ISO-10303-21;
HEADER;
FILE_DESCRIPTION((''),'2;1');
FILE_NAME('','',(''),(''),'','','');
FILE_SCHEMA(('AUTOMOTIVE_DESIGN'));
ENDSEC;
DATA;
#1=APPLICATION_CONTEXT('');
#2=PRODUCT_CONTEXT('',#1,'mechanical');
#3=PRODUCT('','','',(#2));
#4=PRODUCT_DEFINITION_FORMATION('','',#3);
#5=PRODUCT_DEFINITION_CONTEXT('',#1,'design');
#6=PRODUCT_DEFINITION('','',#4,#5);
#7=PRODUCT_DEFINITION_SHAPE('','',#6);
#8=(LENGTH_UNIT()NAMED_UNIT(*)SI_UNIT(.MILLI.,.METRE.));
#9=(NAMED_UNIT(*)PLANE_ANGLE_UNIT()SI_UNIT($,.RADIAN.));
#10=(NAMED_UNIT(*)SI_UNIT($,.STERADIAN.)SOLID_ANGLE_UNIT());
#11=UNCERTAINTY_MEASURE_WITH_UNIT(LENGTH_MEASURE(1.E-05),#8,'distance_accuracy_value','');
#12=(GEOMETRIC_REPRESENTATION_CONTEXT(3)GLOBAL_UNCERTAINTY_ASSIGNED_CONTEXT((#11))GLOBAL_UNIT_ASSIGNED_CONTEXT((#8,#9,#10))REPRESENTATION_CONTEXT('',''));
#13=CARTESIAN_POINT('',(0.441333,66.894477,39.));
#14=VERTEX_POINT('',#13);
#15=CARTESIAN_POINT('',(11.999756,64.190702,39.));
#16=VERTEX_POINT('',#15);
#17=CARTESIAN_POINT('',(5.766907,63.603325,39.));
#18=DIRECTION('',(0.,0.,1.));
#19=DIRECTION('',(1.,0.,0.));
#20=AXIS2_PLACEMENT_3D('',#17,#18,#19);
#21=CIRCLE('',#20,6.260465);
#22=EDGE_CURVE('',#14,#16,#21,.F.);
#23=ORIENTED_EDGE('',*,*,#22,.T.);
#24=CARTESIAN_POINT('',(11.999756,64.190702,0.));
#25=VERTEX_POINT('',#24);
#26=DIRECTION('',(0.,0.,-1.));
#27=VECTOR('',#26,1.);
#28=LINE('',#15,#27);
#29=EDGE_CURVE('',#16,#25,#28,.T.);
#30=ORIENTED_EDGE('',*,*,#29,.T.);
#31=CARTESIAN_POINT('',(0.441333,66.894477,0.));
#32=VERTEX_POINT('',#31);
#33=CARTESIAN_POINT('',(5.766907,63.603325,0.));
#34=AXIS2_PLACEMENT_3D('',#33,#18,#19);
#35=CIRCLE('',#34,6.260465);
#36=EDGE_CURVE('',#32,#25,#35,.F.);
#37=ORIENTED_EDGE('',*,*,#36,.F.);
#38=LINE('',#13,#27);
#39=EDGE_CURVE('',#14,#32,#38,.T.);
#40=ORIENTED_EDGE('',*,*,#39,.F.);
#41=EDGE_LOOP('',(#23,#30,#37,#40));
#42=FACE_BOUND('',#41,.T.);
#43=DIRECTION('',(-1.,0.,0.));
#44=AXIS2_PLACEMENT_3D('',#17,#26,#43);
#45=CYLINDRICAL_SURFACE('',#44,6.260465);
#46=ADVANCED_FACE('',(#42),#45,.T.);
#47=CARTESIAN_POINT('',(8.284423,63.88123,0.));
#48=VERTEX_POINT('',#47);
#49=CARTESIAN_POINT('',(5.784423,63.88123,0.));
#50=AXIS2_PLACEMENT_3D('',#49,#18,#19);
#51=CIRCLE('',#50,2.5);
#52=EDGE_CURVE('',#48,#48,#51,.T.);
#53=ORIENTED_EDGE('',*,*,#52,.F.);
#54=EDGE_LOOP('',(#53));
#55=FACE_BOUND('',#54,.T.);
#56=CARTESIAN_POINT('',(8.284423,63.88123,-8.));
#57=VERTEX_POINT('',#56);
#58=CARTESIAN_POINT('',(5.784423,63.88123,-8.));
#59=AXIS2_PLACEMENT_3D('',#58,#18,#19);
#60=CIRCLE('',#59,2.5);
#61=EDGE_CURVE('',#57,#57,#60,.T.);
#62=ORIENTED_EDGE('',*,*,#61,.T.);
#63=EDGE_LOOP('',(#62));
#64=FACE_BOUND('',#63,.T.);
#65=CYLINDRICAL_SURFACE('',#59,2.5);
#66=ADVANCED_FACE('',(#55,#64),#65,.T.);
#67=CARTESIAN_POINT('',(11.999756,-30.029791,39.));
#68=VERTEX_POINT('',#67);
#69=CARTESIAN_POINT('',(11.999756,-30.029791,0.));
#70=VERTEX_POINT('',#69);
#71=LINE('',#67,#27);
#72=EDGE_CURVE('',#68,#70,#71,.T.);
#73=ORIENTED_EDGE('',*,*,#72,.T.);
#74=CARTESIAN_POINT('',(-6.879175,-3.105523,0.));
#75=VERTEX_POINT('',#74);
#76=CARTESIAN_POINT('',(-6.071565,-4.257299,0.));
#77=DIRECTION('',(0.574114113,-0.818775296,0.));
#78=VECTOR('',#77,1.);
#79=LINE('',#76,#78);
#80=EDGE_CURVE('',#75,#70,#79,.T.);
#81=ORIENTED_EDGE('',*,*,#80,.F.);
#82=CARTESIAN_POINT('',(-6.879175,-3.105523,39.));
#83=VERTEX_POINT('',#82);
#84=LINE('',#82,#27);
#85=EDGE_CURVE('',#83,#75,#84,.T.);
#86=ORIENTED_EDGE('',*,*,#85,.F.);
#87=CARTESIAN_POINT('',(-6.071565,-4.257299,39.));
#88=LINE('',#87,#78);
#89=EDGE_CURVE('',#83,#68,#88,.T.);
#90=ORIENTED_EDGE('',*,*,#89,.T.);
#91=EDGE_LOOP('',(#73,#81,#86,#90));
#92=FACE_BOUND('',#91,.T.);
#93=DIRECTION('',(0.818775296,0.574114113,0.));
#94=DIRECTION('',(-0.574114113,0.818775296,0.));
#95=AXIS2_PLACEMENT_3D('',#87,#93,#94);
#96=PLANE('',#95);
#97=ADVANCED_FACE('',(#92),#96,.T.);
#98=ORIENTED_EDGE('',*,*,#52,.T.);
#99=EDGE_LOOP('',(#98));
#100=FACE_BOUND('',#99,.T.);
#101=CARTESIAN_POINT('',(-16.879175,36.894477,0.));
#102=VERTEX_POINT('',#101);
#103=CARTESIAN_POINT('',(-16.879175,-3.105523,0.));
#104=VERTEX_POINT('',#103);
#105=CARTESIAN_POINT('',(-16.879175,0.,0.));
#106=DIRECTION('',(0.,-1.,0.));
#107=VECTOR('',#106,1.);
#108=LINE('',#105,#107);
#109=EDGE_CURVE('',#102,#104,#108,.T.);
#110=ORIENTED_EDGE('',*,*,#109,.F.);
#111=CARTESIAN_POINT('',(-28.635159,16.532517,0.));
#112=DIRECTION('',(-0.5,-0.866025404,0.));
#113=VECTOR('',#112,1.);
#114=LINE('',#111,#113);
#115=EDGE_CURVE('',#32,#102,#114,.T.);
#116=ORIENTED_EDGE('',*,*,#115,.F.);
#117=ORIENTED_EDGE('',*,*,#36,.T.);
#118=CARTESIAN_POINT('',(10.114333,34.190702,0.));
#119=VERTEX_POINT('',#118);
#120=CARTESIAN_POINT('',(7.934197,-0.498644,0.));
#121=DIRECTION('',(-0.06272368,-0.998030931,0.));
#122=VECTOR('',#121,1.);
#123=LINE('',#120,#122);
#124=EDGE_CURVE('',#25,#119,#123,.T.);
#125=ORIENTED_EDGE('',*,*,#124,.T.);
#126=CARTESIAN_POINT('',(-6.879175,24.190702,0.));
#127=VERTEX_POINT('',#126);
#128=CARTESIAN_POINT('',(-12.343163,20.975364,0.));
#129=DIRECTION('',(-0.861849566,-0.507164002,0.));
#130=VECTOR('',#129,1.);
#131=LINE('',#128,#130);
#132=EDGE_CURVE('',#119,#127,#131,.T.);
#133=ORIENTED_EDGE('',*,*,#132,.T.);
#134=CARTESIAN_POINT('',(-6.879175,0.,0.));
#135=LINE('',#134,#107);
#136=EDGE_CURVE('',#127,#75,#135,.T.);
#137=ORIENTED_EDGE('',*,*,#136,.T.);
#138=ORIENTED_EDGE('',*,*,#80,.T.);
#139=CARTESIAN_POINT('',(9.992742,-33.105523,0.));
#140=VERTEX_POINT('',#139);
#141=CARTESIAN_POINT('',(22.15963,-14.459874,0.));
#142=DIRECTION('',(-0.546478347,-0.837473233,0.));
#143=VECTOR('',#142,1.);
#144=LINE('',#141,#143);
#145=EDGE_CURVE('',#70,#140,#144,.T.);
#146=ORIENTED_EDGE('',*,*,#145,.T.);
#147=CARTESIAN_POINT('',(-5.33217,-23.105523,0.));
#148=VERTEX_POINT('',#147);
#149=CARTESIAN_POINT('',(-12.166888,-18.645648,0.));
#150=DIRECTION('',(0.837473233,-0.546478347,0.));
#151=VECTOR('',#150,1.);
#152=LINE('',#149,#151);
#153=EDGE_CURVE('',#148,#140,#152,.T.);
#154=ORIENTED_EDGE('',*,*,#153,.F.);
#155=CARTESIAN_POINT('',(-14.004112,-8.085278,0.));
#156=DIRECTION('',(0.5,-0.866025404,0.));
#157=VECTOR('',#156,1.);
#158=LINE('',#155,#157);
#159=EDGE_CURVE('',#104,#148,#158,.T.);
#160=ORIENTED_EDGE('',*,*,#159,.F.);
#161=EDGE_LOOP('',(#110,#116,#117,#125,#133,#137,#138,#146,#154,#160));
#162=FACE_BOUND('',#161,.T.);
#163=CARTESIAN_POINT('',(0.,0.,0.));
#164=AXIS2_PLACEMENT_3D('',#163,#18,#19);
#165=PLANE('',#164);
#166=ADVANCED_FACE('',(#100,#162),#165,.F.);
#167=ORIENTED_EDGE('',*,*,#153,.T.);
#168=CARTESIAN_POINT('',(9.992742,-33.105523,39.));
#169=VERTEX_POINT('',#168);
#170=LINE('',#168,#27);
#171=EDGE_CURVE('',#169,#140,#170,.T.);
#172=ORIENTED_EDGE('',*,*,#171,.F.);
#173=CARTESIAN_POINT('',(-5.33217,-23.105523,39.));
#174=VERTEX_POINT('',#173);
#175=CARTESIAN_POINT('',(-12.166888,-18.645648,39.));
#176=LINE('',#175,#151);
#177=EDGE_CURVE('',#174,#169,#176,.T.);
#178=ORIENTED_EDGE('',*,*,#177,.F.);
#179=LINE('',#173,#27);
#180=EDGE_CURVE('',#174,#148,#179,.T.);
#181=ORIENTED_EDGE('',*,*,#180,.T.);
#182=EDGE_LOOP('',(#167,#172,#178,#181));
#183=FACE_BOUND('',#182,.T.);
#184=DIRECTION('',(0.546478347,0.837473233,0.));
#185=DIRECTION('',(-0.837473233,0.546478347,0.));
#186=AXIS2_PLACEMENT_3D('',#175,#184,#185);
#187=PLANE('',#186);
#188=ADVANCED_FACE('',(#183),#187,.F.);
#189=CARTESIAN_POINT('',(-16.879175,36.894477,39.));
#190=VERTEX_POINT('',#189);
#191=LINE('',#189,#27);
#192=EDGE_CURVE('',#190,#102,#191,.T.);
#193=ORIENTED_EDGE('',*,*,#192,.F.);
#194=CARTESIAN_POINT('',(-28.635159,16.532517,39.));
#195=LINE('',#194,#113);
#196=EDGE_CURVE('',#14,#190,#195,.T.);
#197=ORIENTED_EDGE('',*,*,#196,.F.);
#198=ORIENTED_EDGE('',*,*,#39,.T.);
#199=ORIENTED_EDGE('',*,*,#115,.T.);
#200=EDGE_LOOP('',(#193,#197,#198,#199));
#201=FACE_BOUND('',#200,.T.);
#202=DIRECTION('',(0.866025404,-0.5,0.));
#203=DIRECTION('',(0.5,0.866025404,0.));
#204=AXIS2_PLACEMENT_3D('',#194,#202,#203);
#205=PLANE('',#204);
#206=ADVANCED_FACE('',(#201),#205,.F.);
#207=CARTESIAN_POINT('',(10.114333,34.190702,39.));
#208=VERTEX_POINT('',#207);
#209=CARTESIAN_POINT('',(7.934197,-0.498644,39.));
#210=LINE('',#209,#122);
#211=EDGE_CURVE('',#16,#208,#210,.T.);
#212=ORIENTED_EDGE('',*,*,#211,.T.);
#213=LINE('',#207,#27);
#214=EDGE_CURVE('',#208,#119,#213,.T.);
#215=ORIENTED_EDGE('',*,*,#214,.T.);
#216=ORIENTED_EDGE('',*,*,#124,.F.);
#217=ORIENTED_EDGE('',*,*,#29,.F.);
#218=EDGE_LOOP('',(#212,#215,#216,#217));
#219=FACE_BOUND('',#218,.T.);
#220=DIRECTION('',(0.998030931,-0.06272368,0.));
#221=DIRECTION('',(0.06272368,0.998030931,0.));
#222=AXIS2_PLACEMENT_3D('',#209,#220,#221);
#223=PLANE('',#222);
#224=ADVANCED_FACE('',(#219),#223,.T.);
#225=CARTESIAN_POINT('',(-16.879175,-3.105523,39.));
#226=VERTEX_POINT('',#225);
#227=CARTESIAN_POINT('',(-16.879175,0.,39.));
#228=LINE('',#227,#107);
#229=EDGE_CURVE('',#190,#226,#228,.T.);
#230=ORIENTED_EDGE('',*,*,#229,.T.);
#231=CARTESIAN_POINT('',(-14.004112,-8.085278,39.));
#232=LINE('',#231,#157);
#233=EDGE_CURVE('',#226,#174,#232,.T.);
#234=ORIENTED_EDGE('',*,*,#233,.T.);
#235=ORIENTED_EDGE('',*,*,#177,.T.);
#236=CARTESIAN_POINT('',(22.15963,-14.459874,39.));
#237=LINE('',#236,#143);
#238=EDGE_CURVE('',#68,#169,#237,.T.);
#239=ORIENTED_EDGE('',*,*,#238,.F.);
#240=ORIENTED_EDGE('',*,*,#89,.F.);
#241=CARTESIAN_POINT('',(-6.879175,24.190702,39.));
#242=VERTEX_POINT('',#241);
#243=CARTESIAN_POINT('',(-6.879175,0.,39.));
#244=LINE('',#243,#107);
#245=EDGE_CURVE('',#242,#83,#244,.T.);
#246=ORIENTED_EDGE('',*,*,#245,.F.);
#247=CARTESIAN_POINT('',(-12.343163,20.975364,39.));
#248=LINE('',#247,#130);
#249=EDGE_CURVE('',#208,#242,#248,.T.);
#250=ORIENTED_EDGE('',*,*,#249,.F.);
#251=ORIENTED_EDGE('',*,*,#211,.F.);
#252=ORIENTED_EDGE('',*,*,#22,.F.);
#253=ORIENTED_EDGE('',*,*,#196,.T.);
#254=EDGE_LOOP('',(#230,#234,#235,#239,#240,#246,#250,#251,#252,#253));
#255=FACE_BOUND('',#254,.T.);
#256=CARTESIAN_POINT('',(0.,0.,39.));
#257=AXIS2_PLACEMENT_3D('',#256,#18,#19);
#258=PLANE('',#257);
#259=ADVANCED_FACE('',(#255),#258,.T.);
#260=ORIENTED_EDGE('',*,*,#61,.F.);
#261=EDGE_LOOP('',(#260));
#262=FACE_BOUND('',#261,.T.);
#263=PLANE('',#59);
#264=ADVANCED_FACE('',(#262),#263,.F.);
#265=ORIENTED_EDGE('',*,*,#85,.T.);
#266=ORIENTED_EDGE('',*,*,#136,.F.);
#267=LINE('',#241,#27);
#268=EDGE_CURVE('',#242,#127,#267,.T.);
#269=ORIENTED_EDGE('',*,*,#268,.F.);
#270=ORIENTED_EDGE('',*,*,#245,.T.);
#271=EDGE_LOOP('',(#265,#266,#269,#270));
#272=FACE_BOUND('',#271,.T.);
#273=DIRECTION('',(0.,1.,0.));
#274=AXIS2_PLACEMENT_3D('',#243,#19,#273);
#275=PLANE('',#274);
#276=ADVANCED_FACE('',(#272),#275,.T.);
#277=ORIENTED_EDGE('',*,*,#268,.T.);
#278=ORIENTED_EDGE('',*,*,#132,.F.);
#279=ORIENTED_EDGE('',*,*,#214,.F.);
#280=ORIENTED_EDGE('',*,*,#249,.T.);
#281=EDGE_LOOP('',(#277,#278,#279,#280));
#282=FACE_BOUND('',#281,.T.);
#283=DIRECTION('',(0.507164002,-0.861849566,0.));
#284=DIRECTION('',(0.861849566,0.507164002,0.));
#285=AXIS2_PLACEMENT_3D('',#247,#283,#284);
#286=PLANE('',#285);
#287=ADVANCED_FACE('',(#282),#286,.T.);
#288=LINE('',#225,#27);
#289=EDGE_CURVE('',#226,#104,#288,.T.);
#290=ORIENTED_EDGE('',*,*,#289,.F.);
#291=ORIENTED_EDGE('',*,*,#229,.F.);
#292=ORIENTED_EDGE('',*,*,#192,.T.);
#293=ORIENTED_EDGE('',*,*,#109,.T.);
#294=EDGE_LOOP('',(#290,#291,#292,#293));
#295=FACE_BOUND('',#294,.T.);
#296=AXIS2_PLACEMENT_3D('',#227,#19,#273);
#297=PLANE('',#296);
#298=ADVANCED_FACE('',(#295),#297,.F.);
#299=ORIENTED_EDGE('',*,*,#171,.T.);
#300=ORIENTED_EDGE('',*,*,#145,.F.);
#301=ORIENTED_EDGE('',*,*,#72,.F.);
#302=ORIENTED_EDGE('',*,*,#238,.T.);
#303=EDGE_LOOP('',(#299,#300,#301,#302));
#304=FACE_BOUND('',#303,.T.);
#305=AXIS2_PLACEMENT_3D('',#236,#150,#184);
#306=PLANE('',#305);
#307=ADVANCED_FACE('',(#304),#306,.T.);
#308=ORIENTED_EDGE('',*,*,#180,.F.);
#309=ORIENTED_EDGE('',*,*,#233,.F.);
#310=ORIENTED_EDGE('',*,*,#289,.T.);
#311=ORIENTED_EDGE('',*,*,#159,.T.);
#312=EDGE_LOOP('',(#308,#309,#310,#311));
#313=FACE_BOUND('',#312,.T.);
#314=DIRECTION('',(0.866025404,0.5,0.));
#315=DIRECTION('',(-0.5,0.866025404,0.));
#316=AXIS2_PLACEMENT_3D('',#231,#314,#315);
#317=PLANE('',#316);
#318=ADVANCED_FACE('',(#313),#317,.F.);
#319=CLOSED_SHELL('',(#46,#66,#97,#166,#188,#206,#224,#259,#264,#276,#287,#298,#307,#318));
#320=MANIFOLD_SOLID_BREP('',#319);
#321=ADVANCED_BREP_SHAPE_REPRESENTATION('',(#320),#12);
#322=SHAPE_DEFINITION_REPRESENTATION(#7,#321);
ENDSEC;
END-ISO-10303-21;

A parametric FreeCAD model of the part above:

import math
import FreeCAD as App
import Part
import Sketcher

V = App.Vector
Q = App.Units.Quantity

doc = App.newDocument("Part")
body = doc.addObject("PartDesign::Body", "Body")

sketch1 = body.newObject("Sketcher::SketchObject", "Sketch")
sketch1.AttachmentSupport = (doc.getObject("XY_Plane"), [""])
sketch1.MapMode = "FlatFace"
sketch1.addGeometry([
    Part.ArcOfCircle(Part.Circle(V(5.8, 63.6, 0), V(0, 0, 1), 6.3), math.radians(5), math.radians(148)),
    Part.LineSegment(V(0.4, 66.9, 0), V(-16.9, 36.9, 0)),
    Part.LineSegment(V(-16.9, 36.9, 0), V(-16.9, -3.1, 0)),
    Part.LineSegment(V(-16.9, -3.1, 0), V(-5.3, -23.1, 0)),
    Part.LineSegment(V(-5.3, -23.1, 0), V(10, -33.1, 0)),
    Part.LineSegment(V(10, -33.1, 0), V(12, -30, 0)),
    Part.LineSegment(V(12, -30, 0), V(-6.9, -3.1, 0)),
    Part.LineSegment(V(-6.9, -3.1, 0), V(-6.9, 24.2, 0)),
    Part.LineSegment(V(-6.9, 24.2, 0), V(10.1, 34.2, 0)),
    Part.LineSegment(V(10.1, 34.2, 0), V(12, 64.2, 0)),
], False)
sketch1.addConstraint([
    Sketcher.Constraint("Coincident", 0, 2, 1, 1),
    Sketcher.Constraint("Coincident", 1, 2, 2, 1),
    Sketcher.Constraint("Coincident", 2, 2, 3, 1),
    Sketcher.Constraint("Coincident", 3, 2, 4, 1),
    Sketcher.Constraint("Coincident", 4, 2, 5, 1),
    Sketcher.Constraint("Coincident", 5, 2, 6, 1),
    Sketcher.Constraint("Coincident", 6, 2, 7, 1),
    Sketcher.Constraint("Coincident", 7, 2, 8, 1),
    Sketcher.Constraint("Coincident", 8, 2, 9, 1),
    Sketcher.Constraint("Coincident", 9, 2, 0, 1),
    Sketcher.Constraint("Vertical", 2),
    Sketcher.Constraint("Vertical", 7),
    Sketcher.Constraint("Perpendicular", 4, 5),
    Sketcher.Constraint("Horizontal", 2, 2, 6, 2),
    Sketcher.Constraint("Vertical", 5, 2, 9, 2),
    Sketcher.Constraint("DistanceY", 2, 2, 2, 1, 40.0),
    Sketcher.Constraint("Angle", 1, Q("-120 deg")),
    Sketcher.Constraint("Angle", 3, Q("-60 deg")),
    Sketcher.Constraint("DistanceY", 1, 2, 0, 2, 30.0),
    Sketcher.Constraint("DistanceY", 3, 2, 2, 2, 20.0),
    Sketcher.Constraint("DistanceY", 4, 2, 3, 2, 10.0),
    Sketcher.Constraint("DistanceX", 2, 2, 6, 2, 10.0),
    Sketcher.Constraint("DistanceY", 7, 2, 8, 2, 10.0),
    Sketcher.Constraint("DistanceY", 8, 2, 9, 2, 30.0),
    Sketcher.Constraint("Radius", 0, 6.260465),
    Sketcher.Constraint("DistanceX", 0, 2, 8, 2, 9.673),
    Sketcher.Constraint("Distance", 9, 30.059189),
    Sketcher.Constraint("DistanceY", 7, 1, 7, 2, 27.296225),
    Sketcher.Constraint("DistanceX", 3, 2, -1, 1, 5.33217),
    Sketcher.Constraint("DistanceX", -1, 1, 4, 2, 9.992742),
    Sketcher.Constraint("DistanceY", 5, 2, -1, 1, 30.029791),
])
pad1 = body.newObject("PartDesign::Pad", "Pad")
pad1.Profile = sketch1
pad1.Length = 39

sketch2 = body.newObject("Sketcher::SketchObject", "Sketch001")
sketch2.AttachmentSupport = (doc.getObject("XY_Plane"), [""])
sketch2.MapMode = "FlatFace"
sketch2.addGeometry(Part.Circle(V(5.8, 63.9, 0), V(0, 0, 1), 2.5), False)
sketch2.addConstraint([
    Sketcher.Constraint("Diameter", 0, 5.0),
    Sketcher.Constraint("DistanceY", -1, 1, 0, 3, 63.88123),
    Sketcher.Constraint("DistanceX", -1, 1, 0, 3, 5.784423),
])
pad2 = body.newObject("PartDesign::Pad", "Pad001")
pad2.Profile = sketch2
pad2.Length = 8
pad2.Reversed = True

doc.recompute()
